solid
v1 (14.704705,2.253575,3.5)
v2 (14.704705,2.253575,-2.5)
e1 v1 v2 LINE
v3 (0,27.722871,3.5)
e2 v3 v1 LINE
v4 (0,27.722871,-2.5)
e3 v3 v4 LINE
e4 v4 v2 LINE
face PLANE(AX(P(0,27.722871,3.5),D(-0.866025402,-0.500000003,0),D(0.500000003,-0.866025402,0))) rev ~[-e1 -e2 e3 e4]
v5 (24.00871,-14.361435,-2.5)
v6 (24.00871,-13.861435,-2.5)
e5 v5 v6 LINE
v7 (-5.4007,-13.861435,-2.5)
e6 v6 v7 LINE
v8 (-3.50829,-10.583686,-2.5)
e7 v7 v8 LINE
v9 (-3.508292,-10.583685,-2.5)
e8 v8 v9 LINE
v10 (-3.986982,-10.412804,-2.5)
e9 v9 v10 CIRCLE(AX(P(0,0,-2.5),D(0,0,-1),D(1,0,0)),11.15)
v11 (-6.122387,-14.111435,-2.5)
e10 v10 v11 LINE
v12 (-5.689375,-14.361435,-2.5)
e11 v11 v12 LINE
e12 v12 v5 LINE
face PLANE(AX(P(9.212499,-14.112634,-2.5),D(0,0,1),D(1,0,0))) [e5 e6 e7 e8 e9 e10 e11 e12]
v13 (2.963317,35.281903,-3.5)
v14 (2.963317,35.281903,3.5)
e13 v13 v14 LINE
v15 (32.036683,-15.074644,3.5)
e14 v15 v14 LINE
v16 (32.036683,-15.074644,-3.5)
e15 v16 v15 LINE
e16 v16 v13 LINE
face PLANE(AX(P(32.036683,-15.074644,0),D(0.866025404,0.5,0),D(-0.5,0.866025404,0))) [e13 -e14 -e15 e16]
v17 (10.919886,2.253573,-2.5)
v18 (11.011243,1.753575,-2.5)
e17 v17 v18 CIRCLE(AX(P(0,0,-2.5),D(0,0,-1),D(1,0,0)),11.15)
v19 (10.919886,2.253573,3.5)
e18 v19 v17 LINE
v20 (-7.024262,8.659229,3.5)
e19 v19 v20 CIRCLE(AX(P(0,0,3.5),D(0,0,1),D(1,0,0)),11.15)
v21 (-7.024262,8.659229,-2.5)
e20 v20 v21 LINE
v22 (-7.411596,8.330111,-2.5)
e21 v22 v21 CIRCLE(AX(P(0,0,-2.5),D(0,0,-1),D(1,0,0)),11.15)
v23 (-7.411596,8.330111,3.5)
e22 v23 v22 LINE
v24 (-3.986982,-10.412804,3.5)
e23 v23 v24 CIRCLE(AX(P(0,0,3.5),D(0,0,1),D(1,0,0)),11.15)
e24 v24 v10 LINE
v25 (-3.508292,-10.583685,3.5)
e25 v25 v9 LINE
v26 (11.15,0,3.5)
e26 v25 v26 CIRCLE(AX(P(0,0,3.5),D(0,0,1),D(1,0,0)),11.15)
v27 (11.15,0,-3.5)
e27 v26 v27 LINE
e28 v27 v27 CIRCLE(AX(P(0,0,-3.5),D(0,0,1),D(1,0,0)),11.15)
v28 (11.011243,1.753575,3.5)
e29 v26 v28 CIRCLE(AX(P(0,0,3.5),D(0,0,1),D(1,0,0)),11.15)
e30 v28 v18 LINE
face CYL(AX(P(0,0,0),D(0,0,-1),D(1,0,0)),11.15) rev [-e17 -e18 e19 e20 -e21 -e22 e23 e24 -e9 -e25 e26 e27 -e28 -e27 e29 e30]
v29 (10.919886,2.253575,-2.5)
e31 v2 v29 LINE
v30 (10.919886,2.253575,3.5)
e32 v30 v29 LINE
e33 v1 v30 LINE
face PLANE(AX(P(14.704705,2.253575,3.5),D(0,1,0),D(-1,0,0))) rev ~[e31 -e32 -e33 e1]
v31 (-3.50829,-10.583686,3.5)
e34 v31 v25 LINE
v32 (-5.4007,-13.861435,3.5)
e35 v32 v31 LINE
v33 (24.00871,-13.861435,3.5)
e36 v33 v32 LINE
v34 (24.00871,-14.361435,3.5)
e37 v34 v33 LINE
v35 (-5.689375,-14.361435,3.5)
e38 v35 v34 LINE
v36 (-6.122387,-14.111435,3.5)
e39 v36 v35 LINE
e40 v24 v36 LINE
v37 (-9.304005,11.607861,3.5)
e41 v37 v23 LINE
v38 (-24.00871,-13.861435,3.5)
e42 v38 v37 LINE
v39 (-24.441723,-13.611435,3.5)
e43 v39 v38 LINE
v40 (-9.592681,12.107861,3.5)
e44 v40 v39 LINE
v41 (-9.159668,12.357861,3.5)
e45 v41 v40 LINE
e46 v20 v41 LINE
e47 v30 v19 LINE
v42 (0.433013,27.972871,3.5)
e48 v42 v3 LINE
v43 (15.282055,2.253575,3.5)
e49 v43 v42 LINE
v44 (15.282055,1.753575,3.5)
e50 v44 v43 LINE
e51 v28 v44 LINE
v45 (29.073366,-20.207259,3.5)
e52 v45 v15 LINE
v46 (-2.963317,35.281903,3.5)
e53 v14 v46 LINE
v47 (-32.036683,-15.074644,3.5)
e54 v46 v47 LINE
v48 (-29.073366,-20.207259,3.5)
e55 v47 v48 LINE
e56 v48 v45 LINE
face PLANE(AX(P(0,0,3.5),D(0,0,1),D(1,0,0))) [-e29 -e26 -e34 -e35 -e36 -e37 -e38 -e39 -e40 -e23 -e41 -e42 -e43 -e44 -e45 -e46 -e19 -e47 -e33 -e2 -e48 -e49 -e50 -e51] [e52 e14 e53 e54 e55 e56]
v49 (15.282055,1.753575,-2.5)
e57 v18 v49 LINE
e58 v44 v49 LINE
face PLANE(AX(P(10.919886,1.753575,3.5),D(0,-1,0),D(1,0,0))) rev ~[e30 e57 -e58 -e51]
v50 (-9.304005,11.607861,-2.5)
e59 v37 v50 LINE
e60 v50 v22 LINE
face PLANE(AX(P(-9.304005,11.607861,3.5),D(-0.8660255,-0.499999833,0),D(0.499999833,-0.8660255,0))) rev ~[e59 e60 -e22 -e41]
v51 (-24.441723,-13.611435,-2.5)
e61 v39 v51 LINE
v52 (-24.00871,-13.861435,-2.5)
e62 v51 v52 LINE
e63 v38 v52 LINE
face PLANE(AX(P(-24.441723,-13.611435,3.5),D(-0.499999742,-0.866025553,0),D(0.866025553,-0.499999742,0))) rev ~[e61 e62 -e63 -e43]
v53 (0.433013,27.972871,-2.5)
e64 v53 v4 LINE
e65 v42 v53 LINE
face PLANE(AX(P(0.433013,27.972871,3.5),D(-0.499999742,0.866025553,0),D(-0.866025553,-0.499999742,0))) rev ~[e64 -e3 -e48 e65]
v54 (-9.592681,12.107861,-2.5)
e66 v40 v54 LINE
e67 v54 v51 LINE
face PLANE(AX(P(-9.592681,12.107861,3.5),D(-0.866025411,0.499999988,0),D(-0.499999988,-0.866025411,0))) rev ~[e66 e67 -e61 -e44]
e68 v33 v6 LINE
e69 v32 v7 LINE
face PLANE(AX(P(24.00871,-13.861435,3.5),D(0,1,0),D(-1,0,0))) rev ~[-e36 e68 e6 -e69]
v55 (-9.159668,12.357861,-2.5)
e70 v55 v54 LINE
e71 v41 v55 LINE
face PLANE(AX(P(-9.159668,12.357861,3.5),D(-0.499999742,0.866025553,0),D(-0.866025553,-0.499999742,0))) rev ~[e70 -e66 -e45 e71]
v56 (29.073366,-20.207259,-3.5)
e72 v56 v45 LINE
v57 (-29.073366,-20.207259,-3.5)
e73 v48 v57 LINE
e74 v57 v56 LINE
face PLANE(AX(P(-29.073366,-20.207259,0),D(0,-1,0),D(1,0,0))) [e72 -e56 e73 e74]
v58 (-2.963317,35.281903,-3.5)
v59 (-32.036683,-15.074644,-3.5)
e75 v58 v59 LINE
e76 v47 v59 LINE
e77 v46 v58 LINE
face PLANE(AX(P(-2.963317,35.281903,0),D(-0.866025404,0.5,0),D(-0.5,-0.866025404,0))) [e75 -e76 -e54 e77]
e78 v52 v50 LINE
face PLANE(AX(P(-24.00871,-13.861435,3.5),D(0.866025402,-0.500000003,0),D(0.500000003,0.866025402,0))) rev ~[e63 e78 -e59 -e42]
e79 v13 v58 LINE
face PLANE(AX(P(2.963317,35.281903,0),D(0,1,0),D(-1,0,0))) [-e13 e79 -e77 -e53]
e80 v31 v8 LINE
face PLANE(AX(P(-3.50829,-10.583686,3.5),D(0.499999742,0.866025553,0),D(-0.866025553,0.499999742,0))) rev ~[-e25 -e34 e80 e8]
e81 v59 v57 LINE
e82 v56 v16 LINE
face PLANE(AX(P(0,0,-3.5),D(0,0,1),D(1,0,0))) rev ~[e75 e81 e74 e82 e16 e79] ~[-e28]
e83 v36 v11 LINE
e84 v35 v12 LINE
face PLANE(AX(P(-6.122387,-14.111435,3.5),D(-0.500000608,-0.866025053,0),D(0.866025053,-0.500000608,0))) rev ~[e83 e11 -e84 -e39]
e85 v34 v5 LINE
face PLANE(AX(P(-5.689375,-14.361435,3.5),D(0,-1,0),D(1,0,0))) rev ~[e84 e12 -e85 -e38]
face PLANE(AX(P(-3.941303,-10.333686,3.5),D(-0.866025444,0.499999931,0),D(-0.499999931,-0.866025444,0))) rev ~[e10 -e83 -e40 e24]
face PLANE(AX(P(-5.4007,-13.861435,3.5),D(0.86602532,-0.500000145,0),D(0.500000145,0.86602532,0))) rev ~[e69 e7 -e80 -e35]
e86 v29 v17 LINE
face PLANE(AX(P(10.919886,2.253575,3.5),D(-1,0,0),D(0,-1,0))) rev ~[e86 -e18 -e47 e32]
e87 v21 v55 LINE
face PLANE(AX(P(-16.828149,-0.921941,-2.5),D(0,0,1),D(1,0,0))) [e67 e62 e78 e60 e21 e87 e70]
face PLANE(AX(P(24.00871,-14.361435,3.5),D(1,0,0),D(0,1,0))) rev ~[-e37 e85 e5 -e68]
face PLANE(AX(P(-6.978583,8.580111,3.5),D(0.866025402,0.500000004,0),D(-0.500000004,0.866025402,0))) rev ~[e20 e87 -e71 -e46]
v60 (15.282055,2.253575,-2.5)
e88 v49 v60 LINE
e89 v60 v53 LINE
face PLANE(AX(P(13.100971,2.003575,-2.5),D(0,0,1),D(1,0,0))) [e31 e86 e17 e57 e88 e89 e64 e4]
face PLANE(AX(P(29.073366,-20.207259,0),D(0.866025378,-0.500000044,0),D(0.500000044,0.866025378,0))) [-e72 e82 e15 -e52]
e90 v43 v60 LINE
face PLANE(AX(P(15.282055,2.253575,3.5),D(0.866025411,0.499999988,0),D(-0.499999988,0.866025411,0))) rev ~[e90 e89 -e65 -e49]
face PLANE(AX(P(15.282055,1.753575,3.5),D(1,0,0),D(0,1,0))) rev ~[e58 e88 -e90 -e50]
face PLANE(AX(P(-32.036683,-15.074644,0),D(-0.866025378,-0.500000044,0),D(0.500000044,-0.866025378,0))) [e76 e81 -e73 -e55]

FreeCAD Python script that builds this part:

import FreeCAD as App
import Part
import Sketcher
from FreeCAD import Vector
Q = App.Units.Quantity


def add_polygon(sketch, points):
    """Adds a closed chain of lines whose ends are joined by coincident constraints."""
    first, n = sketch.GeometryCount, len(points)
    for a, b in zip(points, points[1:] + points[:1]):
        sketch.addGeometry(Part.LineSegment(App.Vector(*a, 0), App.Vector(*b, 0)), False)
    for i in range(n):
        sketch.addConstraint(Sketcher.Constraint("Coincident", first + i, 2, first + (i + 1) % n, 1))

doc = App.newDocument("Part")
body = doc.addObject("PartDesign::Body", "Body")

# Sketch on XY plane
sketch1 = body.newObject("Sketcher::SketchObject", "Sketch")
sketch1.AttachmentSupport = (doc.getObject("XY_Plane"), [""])
sketch1.MapMode = "FlatFace"
add_polygon(sketch1, [(-29, -20), (29, -20), (32, -15), (3, 35), (-3, 35), (-32, -15)])  # lines 0-5
sketch1.addGeometry(Part.Circle(Vector(0, 0, 0), Vector(0, 0, 1), 11), False)  # 6
sketch1.addConstraint([
    Sketcher.Constraint("Horizontal", 0),
    Sketcher.Constraint("Horizontal", 3),
    Sketcher.Constraint("Coincident", 6, 3, -1, 1),
    Sketcher.Constraint("Symmetric", 1, 2, 4, 2, -2),
    Sketcher.Constraint("Parallel", 1, 4),
    Sketcher.Constraint("Parallel", 2, 5),
    Sketcher.Constraint("Equal", 2, 4),
    Sketcher.Constraint("Diameter", 6, 22.3),
    Sketcher.Constraint("Angle", 1, Q("59.999997 deg")),
    Sketcher.Constraint("DistanceX", 3, 2, 1, 2, 35.0),
    Sketcher.Constraint("Distance", 2, 58.146732),
    Sketcher.Constraint("DistanceX", 0, 1, 0, 2, 58.146732),
    Sketcher.Constraint("DistanceY", 0, 2, -1, 1, 20.207259),
])
pad1 = body.newObject("PartDesign::Pad", "Pad")
pad1.Profile = sketch1
pad1.Length = 7
pad1.Midplane = True

# Sketch on XY plane
sketch2 = body.newObject("Sketcher::SketchObject", "Sketch001")
sketch2.AttachmentSupport = (doc.getObject("XY_Plane"), [""])
sketch2.MapMode = "FlatFace"
sketch2.AttachmentOffset = App.Placement(Vector(0, 0, 3.5), App.Rotation())
add_polygon(sketch2, [(10.92, 2.25), (10.92, 1.75), (15.28, 1.75), (15.28, 2.25), (0.43, 27.97), (0, 27.72), (14.7, 2.25)])  # lines 0-6
add_polygon(sketch2, [(-9.59, 12.11), (-24.44, -13.61), (-24.01, -13.86), (-9.3, 11.61), (-7.41, 8.33), (-6.98, 8.58), (-9.16, 12.36)])  # lines 7-13
add_polygon(sketch2, [(-5.69, -14.36), (24.01, -14.36), (24.01, -13.86), (-5.4, -13.86), (-3.51, -10.58), (-3.94, -10.33), (-6.12, -14.11)])  # lines 14-20
sketch2.addConstraint([
    Sketcher.Constraint("Vertical", 0),
    Sketcher.Constraint("Horizontal", 1),
    Sketcher.Constraint("Vertical", 2),
    Sketcher.Constraint("Horizontal", 6),
    Sketcher.Constraint("Horizontal", 14),
    Sketcher.Constraint("Vertical", 15),
    Sketcher.Constraint("Horizontal", 16),
    Sketcher.Constraint("Symmetric", 8, 2, 15, 2, -2),
    Sketcher.Constraint("PointOnObject", 4, 2, -2),
    Sketcher.Constraint("Perpendicular", 3, 4),
    Sketcher.Constraint("Perpendicular", 4, 5),
    Sketcher.Constraint("Perpendicular", 7, 8),
    Sketcher.Constraint("Perpendicular", 8, 9),
    Sketcher.Constraint("Parallel", 5, 10),
    Sketcher.Constraint("Perpendicular", 10, 11),
    Sketcher.Constraint("Perpendicular", 11, 12),
    Sketcher.Constraint("Perpendicular", 12, 13),
    Sketcher.Constraint("Parallel", 9, 17),
    Sketcher.Constraint("Perpendicular", 17, 18),
    Sketcher.Constraint("Perpendicular", 18, 19),
    Sketcher.Constraint("Perpendicular", 19, 20),
    Sketcher.Constraint("Horizontal", 2, 2, 5, 2),
    Sketcher.Constraint("Equal", 2, 15),
    Sketcher.Constraint("Equal", 3, 7),
    Sketcher.Constraint("Equal", 4, 8),
    Sketcher.Constraint("Equal", 5, 9),
    Sketcher.Constraint("Equal", 8, 11),
    Sketcher.Constraint("Equal", 11, 13),
    Sketcher.Constraint("Equal", 10, 17),
    Sketcher.Constraint("Equal", 13, 18),
    Sketcher.Constraint("Equal", 12, 19),
    Sketcher.Constraint("Equal", 18, 20),
    Sketcher.Constraint("Angle", 3, Q("119.999999 deg")),
    Sketcher.Constraint("DistanceY", 0, 2, 0, 1, 0.5),
    Sketcher.Constraint("DistanceX", 1, 1, 1, 2, 4.362169),
    Sketcher.Constraint("DistanceX", 16, 2, 16, 1, 29.40941),
    Sketcher.Constraint("DistanceX", 16, 2, -1, 1, 5.4007),
    Sketcher.Constraint("DistanceX", 13, 2, 11, 2, 2.614098),
    Sketcher.Constraint("Distance", 5, 29.40941),
    Sketcher.Constraint("DistanceY", -1, 1, 3, 2, 27.972871),
    Sketcher.Constraint("DistanceY", -1, 1, 9, 2, 11.607861),
])
pocket1 = body.newObject("PartDesign::Pocket", "Pocket")
pocket1.Profile = sketch2
pocket1.Length = 6

doc.recompute()
